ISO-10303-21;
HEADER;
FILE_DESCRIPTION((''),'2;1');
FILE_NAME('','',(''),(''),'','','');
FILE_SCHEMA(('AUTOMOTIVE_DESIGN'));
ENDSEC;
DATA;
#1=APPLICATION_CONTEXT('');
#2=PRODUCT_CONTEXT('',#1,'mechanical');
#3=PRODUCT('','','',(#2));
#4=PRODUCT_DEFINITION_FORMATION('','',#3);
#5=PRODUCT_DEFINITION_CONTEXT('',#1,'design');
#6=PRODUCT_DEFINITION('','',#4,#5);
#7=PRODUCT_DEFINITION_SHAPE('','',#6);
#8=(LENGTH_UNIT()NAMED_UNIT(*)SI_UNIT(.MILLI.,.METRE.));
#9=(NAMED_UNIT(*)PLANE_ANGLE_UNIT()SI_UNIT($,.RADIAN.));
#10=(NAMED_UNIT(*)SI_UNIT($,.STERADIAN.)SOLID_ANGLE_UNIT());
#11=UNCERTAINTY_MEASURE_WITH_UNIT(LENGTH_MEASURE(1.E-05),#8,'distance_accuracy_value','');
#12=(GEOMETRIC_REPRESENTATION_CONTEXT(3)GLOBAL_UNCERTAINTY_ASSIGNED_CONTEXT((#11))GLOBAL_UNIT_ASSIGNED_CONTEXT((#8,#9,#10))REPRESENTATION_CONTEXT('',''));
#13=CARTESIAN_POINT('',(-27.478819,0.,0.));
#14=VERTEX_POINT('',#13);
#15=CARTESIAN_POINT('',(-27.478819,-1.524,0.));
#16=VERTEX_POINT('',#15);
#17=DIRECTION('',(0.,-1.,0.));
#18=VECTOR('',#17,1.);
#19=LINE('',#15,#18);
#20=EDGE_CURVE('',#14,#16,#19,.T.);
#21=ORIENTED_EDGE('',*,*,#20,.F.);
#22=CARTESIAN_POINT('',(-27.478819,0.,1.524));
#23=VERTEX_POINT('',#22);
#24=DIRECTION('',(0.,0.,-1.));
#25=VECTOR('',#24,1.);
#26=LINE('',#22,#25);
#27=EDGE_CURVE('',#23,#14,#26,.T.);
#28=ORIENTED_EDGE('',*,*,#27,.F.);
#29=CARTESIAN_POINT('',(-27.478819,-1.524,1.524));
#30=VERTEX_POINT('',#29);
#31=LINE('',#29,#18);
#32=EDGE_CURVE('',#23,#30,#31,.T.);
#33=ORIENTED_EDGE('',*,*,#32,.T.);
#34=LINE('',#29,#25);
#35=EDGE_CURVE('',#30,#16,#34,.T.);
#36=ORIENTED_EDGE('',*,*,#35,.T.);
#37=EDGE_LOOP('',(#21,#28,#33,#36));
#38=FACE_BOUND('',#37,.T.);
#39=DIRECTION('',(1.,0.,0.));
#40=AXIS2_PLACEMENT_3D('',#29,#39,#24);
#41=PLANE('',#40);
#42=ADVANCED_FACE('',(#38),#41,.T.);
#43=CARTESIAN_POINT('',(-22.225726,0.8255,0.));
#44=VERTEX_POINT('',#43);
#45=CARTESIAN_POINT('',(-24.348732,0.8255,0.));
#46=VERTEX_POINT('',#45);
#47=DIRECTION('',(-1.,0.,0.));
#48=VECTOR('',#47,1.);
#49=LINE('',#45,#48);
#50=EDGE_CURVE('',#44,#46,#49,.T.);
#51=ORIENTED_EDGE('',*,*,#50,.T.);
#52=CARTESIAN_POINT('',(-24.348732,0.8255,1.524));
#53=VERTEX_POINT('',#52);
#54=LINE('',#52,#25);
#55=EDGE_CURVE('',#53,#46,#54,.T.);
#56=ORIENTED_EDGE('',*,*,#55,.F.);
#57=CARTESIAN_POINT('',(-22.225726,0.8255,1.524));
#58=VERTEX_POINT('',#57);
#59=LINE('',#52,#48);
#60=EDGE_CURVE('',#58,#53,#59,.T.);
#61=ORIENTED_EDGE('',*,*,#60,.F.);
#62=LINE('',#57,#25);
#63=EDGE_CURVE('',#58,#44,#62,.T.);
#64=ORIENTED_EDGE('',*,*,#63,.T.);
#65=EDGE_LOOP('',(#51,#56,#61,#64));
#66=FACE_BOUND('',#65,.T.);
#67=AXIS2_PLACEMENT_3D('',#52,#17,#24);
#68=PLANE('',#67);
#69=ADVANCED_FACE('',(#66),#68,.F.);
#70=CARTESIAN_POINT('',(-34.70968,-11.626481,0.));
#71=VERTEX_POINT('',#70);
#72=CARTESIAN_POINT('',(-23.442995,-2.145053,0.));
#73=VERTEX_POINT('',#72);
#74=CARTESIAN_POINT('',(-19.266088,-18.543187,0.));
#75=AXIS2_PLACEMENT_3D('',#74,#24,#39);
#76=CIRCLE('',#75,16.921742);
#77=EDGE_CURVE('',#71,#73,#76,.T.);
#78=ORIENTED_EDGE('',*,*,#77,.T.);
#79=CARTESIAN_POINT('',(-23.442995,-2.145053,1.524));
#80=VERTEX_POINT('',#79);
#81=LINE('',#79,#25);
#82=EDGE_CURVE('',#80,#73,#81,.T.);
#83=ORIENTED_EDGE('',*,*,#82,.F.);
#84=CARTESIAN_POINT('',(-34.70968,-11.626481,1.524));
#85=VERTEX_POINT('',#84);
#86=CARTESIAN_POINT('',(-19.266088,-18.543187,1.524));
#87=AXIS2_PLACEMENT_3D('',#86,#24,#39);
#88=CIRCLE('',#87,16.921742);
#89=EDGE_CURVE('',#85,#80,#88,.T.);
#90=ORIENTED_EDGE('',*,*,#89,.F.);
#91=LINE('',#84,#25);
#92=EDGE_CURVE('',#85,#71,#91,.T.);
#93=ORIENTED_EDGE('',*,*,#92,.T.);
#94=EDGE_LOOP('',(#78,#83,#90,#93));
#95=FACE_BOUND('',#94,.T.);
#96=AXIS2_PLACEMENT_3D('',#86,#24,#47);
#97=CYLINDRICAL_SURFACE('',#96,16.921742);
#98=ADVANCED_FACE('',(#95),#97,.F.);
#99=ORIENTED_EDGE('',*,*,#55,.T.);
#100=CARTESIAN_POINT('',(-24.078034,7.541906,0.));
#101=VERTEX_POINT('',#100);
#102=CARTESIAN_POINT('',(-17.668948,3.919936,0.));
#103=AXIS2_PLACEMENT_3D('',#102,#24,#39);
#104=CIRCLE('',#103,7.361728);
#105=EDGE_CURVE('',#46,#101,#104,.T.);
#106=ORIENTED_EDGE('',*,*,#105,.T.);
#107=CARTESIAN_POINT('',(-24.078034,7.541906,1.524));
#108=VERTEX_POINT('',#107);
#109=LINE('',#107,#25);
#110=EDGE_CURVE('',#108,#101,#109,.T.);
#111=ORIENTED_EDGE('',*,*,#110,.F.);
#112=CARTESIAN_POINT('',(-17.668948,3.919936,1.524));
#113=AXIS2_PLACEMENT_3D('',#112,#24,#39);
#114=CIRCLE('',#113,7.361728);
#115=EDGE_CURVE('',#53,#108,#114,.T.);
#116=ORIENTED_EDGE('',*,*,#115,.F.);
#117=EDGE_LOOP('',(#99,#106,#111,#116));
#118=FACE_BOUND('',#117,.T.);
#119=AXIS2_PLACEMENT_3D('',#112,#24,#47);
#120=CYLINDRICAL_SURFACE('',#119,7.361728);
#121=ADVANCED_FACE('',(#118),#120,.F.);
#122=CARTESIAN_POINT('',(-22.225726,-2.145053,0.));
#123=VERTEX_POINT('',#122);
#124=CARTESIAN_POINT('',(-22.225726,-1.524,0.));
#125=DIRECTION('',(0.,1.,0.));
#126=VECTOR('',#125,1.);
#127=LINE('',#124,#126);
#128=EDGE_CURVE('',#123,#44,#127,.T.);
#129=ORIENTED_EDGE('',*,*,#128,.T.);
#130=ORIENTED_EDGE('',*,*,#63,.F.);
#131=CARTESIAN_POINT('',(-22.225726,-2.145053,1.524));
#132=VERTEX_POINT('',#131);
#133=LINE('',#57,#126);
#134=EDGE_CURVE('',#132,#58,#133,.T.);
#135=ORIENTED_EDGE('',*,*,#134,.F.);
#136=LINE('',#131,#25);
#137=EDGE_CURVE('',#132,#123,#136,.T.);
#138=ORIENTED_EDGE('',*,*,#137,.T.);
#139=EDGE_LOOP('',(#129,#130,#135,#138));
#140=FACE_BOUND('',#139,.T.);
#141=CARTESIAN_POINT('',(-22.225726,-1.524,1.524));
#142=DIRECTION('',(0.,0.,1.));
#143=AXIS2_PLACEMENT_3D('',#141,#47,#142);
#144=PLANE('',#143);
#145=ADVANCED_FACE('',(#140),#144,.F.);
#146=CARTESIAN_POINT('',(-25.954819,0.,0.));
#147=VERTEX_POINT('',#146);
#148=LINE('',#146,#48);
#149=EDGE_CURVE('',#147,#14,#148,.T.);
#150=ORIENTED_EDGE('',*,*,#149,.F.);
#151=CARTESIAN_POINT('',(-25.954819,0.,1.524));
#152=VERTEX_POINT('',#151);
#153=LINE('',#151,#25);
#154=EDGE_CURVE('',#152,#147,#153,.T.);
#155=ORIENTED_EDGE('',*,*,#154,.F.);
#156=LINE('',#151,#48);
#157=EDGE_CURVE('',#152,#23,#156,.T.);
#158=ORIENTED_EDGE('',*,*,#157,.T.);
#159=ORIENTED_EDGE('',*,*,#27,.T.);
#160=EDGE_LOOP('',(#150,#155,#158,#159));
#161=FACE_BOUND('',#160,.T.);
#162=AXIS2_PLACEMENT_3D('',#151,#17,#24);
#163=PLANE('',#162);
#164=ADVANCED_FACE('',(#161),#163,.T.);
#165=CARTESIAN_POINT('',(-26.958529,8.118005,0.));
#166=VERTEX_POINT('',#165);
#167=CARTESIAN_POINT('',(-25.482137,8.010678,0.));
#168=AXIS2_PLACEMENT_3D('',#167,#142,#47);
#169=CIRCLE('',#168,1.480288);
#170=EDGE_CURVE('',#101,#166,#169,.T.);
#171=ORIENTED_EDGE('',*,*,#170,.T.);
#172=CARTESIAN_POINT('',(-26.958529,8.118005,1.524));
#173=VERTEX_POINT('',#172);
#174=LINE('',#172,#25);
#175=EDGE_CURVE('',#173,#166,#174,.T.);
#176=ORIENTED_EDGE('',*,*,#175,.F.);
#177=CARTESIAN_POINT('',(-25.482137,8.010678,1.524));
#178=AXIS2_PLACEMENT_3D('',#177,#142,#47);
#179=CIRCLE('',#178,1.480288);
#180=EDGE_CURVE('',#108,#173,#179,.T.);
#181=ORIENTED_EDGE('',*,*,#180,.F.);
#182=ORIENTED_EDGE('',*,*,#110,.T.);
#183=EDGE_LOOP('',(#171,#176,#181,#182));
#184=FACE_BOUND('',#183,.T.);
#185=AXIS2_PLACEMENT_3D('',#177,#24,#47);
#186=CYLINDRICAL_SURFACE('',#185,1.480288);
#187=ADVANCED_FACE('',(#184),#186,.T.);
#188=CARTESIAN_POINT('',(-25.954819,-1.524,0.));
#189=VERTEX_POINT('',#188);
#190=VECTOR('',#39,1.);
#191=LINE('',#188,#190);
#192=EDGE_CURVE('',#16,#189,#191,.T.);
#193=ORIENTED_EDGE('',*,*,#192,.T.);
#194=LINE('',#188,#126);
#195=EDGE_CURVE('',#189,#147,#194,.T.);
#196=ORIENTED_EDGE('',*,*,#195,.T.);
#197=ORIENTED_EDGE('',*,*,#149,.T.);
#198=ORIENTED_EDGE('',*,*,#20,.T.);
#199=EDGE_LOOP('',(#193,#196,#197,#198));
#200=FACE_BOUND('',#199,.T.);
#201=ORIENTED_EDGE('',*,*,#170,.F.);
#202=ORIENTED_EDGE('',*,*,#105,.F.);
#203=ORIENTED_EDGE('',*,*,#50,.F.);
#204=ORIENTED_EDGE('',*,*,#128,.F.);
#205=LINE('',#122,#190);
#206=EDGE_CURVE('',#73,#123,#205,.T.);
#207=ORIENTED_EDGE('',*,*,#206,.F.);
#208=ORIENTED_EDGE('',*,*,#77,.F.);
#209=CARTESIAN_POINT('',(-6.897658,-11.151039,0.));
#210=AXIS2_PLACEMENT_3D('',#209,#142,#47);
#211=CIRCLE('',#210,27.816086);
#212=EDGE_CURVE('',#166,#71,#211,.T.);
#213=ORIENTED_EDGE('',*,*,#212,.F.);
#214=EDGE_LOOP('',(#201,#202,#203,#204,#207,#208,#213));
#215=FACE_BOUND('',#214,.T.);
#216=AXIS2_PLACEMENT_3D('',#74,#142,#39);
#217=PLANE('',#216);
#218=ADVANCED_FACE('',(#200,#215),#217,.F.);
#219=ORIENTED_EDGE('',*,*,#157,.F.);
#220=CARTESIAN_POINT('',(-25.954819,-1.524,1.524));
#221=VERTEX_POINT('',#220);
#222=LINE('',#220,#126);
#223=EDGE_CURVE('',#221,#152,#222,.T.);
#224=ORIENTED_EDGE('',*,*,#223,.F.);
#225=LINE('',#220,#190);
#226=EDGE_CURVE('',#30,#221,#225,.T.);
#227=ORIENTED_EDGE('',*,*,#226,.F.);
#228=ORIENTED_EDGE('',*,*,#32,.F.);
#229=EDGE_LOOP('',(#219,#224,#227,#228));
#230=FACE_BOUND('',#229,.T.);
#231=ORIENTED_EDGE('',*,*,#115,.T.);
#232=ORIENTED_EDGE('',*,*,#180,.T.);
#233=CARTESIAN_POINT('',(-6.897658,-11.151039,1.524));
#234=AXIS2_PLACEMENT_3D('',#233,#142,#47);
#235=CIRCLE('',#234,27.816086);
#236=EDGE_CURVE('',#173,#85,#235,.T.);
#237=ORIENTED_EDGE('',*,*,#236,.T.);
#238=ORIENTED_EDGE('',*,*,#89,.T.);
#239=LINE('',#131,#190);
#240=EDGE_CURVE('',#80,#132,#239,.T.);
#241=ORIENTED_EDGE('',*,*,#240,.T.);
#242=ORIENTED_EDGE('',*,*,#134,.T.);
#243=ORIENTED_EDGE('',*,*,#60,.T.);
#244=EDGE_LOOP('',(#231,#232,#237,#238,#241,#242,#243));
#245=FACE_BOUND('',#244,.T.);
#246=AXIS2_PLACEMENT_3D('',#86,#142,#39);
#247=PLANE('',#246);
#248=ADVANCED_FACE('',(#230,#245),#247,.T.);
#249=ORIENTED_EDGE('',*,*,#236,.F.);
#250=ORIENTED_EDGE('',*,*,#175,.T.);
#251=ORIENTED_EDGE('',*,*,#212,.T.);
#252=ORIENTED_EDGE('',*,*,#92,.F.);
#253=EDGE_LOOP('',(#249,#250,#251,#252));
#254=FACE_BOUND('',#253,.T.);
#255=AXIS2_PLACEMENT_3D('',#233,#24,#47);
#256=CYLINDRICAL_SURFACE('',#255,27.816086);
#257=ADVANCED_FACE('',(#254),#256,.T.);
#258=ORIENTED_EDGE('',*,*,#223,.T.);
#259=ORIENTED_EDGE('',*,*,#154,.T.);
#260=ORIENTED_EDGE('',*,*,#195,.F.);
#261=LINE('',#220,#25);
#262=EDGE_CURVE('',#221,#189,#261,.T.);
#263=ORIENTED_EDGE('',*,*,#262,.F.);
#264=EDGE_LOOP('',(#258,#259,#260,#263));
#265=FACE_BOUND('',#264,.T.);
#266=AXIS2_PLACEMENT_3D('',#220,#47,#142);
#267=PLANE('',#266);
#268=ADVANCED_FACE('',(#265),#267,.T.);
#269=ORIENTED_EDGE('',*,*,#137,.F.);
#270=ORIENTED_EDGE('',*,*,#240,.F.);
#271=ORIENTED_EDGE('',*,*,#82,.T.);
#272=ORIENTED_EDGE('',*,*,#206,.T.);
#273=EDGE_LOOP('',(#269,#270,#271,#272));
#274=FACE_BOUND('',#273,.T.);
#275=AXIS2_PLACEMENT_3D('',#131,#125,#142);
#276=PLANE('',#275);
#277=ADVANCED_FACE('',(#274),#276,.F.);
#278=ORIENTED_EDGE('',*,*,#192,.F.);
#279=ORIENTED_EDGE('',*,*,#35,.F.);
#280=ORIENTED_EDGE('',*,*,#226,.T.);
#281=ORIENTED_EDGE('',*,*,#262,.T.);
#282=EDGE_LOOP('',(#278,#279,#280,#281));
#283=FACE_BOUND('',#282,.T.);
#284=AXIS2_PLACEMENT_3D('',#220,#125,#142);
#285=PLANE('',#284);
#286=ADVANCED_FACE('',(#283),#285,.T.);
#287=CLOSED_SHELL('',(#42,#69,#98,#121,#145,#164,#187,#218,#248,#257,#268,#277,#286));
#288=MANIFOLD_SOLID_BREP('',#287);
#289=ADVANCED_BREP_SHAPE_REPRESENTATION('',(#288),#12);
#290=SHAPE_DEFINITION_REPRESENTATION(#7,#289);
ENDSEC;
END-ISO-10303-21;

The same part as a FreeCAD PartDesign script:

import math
import FreeCAD as App
import Part
import Sketcher

V = App.Vector
Q = App.Units.Quantity

doc = App.newDocument("Part")
params = doc.addObject("Spreadsheet::Sheet", "Params")
for row, (alias, value) in enumerate([
    ("sketch1_width", "0.06 in"),
    ("pad1_length", "0.06 in"),
], start=1):
    params.set(f"A{row}", alias)
    params.set(f"B{row}", "=" + value)
    params.setAlias(f"B{row}", alias)

body = doc.addObject("PartDesign::Body", "Body")

# Sketch on XY plane
sketch1 = body.newObject("Sketcher::SketchObject", "Sketch")
sketch1.AttachmentSupport = (doc.getObject("XY_Plane"), [""])
sketch1.MapMode = "FlatFace"
sketch1.addGeometry(Part.LineSegment(V(-23.442995, -2.145053, 0), V(-22.225726, -2.145053, 0)), False)
sketch1.addGeometry(Part.LineSegment(V(-22.225726, -2.145053, 0), V(-22.225726, 0.8255, 0)), False)
sketch1.addGeometry(Part.LineSegment(V(-22.225726, 0.8255, 0), V(-24.348732, 0.8255, 0)), False)
sketch1.addGeometry(Part.ArcOfCircle(Part.Circle(V(-17.668948, 3.919936, 0), V(0, 0, 1), 7.361728), math.radians(150.527882), math.radians(204.856114)), False)
sketch1.addGeometry(Part.ArcOfCircle(Part.Circle(V(-25.482137, 8.010678, 0), V(0, 0, 1), 1.480288), math.radians(-18.462035), math.radians(175.84217)), False)
sketch1.addGeometry(Part.ArcOfCircle(Part.Circle(V(-6.897658, -11.151039, 0), V(0, 0, 1), 27.816086), math.radians(136.153376), math.radians(180.979366)), False)
sketch1.addGeometry(Part.ArcOfCircle(Part.Circle(V(-19.266088, -18.543187, 0), V(0, 0, 1), 16.921742), math.radians(104.290404), math.radians(155.873873)), False)
sketch1.addGeometry(Part.LineSegment(V(-27.478819, -1.524, 0), V(-27.478819, 0, 0)), False)
sketch1.addGeometry(Part.LineSegment(V(-27.478819, 0, 0), V(-25.954819, 0, 0)), False)
sketch1.addGeometry(Part.LineSegment(V(-25.954819, 0, 0), V(-25.954819, -1.524, 0)), False)
sketch1.addGeometry(Part.LineSegment(V(-25.954819, -1.524, 0), V(-27.478819, -1.524, 0)), False)
sketch1.addConstraint(Sketcher.Constraint("Coincident", 0, 2, 1, 1))
sketch1.addConstraint(Sketcher.Constraint("Coincident", 1, 2, 2, 1))
sketch1.addConstraint(Sketcher.Constraint("Coincident", 2, 2, 3, 2))
sketch1.addConstraint(Sketcher.Constraint("Coincident", 3, 1, 4, 1))
sketch1.addConstraint(Sketcher.Constraint("Coincident", 4, 2, 5, 1))
sketch1.addConstraint(Sketcher.Constraint("Coincident", 5, 2, 6, 2))
sketch1.addConstraint(Sketcher.Constraint("Coincident", 6, 1, 0, 1))
sketch1.addConstraint(Sketcher.Constraint("Coincident", 7, 2, 8, 1))
sketch1.addConstraint(Sketcher.Constraint("Coincident", 8, 2, 9, 1))
sketch1.addConstraint(Sketcher.Constraint("Coincident", 9, 2, 10, 1))
sketch1.addConstraint(Sketcher.Constraint("Coincident", 10, 2, 7, 1))
sketch1.addConstraint(Sketcher.Constraint("Horizontal", 0))
sketch1.addConstraint(Sketcher.Constraint("Vertical", 1))
sketch1.addConstraint(Sketcher.Constraint("Horizontal", 2))
sketch1.addConstraint(Sketcher.Constraint("Vertical", 7))
sketch1.addConstraint(Sketcher.Constraint("Horizontal", 8))
sketch1.addConstraint(Sketcher.Constraint("Vertical", 9))
sketch1.addConstraint(Sketcher.Constraint("Horizontal", 10))
sketch1.addConstraint(Sketcher.Constraint("PointOnObject", 7, 2, -1))
sketch1.addConstraint(Sketcher.Constraint("Equal", 10, 7))
sketch1.addConstraint(Sketcher.Constraint("DistanceX", 8, 1, 8, 2, Q("0.06 in")))
sketch1.addConstraint(Sketcher.Constraint("Radius", 3, 7.361728))
sketch1.addConstraint(Sketcher.Constraint("Radius", 4, 1.480288))
sketch1.addConstraint(Sketcher.Constraint("DistanceY", -1, 1, 1, 2, Q("0.0325 in")))
sketch1.addConstraint(Sketcher.Constraint("Radius", 5, 27.816086))
sketch1.addConstraint(Sketcher.Constraint("Radius", 6, 16.921742))
sketch1.addConstraint(Sketcher.Constraint("DistanceX", 0, 1, 0, 2, 1.217269))
sketch1.addConstraint(Sketcher.Constraint("DistanceX", 2, 2, 3, 1, 0.270698))
sketch1.addConstraint(Sketcher.Constraint("DistanceY", 3, 1, 4, 2, 0.576099))
sketch1.addConstraint(Sketcher.Constraint("DistanceX", 2, 2, 2, 1, 2.123006))
sketch1.addConstraint(Sketcher.Constraint("DistanceY", 1, 1, 1, 2, 2.970553))
sketch1.addConstraint(Sketcher.Constraint("DistanceX", 3, 3, -1, 1, 17.668948))
sketch1.addConstraint(Sketcher.Constraint("DistanceX", 5, 3, -1, 1, 6.897658))
sketch1.addConstraint(Sketcher.Constraint("DistanceY", 5, 3, -1, 1, 11.151039))
sketch1.addConstraint(Sketcher.Constraint("DistanceX", 4, 2, -1, 1, 26.958529))
sketch1.addConstraint(Sketcher.Constraint("DistanceX", 5, 2, -1, 1, 34.70968))
sketch1.addConstraint(Sketcher.Constraint("DistanceX", 7, 2, -1, 1, 27.478819))
sketch1.setExpression("Constraints[20]", "Params.sketch1_width")
pad1 = body.newObject("PartDesign::Pad", "Pad")
pad1.Profile = sketch1
pad1.setExpression("Length", "Params.pad1_length")

doc.recompute()
